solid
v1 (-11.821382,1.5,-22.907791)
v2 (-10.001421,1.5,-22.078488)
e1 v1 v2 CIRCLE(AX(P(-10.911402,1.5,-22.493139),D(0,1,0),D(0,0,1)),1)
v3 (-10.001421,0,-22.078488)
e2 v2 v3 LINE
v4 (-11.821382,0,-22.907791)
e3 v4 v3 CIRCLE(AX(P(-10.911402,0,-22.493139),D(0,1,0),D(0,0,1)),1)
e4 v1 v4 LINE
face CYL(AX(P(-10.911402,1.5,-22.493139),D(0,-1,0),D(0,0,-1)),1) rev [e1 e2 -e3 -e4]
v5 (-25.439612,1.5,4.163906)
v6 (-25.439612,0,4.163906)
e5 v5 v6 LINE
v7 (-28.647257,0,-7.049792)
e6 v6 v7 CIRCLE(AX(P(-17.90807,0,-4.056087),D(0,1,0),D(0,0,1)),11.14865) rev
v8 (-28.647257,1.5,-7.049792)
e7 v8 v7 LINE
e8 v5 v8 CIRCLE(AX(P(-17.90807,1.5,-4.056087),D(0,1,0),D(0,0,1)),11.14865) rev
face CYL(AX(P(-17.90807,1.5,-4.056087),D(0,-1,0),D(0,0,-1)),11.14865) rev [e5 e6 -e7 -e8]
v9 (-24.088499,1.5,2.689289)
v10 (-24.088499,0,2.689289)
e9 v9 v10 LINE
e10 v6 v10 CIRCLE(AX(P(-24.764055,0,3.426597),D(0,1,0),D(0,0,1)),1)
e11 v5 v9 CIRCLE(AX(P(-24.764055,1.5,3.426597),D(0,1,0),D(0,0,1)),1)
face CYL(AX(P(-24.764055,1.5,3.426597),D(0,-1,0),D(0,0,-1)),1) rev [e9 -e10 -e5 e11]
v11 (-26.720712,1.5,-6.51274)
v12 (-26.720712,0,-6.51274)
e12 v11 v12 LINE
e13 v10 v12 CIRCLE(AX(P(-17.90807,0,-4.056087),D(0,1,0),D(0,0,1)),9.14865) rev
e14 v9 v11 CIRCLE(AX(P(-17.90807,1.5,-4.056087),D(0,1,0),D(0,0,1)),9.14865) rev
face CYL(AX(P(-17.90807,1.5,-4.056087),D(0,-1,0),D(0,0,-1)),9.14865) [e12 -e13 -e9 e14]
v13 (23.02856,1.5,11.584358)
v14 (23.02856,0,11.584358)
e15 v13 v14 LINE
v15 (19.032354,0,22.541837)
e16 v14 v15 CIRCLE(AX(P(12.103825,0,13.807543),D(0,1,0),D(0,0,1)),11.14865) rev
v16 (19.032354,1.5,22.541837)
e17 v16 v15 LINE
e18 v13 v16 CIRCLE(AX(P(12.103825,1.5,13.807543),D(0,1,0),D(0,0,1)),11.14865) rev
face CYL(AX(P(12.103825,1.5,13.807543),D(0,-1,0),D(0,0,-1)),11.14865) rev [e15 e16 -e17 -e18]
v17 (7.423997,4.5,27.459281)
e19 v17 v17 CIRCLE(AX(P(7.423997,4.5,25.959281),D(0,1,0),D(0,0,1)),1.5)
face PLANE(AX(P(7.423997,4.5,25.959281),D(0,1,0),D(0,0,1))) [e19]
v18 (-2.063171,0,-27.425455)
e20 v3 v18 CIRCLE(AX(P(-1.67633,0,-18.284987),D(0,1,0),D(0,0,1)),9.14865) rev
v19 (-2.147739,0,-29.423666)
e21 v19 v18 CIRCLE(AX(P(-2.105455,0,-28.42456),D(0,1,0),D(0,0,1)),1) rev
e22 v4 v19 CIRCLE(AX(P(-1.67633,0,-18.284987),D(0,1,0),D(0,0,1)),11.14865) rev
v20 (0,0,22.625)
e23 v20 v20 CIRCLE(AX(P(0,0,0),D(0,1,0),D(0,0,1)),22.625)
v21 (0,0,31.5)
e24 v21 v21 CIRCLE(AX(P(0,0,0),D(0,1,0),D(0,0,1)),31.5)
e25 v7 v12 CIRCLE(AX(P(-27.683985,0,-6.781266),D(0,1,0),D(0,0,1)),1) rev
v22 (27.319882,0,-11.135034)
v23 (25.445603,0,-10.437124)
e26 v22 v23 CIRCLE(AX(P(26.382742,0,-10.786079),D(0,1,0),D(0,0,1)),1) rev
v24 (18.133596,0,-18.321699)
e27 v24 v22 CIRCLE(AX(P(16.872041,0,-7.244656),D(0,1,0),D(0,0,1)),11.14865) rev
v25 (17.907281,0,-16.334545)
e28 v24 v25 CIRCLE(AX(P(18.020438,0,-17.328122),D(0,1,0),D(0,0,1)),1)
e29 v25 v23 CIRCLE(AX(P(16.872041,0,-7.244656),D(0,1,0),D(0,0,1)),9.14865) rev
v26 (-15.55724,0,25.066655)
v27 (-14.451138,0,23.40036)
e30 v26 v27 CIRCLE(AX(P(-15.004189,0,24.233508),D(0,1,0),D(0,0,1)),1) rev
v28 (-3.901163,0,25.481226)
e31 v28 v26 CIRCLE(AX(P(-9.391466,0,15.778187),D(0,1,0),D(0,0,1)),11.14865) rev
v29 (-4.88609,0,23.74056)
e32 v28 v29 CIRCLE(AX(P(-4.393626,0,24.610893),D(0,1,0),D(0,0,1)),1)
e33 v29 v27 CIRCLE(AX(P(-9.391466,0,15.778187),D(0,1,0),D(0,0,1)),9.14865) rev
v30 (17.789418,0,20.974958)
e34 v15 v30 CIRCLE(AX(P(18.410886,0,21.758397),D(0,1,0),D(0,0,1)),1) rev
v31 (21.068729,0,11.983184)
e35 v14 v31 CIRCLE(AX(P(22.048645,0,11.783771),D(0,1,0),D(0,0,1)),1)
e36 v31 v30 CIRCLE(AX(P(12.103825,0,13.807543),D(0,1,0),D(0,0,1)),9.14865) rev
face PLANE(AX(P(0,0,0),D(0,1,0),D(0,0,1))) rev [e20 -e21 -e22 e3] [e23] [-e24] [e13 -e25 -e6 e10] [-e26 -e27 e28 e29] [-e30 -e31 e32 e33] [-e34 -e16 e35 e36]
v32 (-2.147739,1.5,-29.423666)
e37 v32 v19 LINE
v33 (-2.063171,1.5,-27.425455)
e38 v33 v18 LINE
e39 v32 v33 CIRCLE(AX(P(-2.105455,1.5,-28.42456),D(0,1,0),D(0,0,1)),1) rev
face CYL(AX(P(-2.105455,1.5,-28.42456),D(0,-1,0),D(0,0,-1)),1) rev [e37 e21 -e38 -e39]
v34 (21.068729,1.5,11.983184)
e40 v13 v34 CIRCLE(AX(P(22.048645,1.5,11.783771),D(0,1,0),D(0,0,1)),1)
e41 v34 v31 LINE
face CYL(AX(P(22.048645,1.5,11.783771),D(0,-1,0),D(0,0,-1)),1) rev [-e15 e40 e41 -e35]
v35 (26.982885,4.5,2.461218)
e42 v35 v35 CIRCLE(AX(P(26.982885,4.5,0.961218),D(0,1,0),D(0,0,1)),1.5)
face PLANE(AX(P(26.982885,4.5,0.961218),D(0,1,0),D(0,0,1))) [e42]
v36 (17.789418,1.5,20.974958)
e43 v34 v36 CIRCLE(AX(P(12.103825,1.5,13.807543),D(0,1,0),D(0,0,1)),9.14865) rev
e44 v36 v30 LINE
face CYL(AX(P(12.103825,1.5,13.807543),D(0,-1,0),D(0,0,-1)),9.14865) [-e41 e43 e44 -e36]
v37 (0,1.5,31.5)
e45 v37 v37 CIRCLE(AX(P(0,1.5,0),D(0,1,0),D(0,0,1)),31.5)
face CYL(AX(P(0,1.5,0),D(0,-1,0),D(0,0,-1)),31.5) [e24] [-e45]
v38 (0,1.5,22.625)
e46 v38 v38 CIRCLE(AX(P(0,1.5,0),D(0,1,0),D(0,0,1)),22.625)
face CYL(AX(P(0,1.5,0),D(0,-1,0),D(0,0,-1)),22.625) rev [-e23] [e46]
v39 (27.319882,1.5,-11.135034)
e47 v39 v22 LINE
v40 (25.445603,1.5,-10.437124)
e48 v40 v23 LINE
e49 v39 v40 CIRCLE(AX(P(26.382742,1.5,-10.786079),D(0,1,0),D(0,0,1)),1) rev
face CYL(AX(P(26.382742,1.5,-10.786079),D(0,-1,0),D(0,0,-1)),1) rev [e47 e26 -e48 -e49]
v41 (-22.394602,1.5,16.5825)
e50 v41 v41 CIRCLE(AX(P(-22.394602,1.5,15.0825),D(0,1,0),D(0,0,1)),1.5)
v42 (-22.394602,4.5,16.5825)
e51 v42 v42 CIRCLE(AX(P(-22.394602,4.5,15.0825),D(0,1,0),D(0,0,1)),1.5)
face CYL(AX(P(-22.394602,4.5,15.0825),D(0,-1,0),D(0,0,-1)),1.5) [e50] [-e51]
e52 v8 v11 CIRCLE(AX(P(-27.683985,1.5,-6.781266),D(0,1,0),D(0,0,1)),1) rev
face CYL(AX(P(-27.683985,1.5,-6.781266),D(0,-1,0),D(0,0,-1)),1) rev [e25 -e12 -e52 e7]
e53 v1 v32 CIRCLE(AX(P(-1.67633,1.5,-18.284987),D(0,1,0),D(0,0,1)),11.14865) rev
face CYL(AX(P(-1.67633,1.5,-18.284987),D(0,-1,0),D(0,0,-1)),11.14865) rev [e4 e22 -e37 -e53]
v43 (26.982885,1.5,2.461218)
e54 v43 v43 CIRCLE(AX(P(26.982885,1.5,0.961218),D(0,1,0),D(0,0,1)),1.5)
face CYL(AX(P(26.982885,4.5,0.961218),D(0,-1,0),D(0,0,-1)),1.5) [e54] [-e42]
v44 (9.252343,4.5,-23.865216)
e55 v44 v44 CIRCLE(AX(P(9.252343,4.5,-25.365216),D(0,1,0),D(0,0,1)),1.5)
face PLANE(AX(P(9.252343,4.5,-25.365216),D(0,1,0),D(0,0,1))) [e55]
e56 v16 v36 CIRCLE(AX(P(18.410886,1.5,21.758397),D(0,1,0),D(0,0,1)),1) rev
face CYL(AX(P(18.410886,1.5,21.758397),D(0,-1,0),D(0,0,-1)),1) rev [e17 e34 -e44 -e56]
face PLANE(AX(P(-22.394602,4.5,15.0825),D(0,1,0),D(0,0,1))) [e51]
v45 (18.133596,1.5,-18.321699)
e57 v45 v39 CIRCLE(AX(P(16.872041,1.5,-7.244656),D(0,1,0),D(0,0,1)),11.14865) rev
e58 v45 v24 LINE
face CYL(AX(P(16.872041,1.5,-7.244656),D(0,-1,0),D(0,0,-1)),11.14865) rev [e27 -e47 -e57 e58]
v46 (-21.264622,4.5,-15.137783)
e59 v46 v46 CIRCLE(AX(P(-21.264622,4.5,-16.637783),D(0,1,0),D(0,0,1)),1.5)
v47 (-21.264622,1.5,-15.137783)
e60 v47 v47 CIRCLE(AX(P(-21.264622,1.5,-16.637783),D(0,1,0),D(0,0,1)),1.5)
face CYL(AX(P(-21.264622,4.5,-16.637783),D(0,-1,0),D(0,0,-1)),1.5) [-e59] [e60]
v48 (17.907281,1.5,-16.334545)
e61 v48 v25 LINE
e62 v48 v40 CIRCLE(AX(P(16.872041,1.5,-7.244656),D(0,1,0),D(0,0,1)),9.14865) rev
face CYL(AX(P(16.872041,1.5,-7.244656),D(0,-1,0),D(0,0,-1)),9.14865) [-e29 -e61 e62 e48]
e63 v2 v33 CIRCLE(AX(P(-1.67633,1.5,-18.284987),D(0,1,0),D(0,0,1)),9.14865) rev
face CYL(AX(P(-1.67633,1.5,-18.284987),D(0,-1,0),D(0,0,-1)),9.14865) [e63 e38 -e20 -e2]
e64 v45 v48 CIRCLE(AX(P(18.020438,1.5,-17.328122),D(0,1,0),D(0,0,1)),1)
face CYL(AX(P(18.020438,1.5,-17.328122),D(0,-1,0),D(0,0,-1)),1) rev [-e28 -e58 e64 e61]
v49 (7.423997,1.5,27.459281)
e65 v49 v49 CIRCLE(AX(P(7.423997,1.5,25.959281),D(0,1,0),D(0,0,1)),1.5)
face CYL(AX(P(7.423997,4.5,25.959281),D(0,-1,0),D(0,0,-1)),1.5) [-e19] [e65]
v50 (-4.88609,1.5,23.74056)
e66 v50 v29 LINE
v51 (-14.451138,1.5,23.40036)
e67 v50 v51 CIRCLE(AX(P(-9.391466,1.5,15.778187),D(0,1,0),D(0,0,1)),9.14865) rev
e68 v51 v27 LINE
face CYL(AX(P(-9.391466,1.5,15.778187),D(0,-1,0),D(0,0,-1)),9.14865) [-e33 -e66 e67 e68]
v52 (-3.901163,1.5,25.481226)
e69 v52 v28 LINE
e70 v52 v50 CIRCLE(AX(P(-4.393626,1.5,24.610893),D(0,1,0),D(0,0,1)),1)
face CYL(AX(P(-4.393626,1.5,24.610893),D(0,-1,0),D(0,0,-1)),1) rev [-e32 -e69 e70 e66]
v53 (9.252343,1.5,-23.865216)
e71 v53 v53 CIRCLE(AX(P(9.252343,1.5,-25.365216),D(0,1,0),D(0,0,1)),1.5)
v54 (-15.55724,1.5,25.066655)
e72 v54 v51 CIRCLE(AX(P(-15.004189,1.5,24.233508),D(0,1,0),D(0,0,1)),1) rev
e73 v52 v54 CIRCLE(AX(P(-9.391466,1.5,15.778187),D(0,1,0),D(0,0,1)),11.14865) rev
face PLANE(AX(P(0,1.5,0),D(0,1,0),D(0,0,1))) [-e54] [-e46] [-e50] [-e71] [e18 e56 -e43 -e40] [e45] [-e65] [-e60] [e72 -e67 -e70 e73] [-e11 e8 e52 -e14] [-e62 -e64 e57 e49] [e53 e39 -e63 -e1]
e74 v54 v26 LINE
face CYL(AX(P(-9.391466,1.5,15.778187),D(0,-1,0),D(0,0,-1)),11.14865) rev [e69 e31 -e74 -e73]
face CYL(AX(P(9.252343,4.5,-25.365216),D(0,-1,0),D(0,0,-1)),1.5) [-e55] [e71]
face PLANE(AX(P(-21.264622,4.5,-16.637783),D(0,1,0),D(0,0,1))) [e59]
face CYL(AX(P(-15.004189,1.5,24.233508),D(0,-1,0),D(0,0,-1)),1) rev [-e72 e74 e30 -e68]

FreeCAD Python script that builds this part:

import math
import FreeCAD as App
import Part
import Sketcher
from FreeCAD import Vector
Q = App.Units.Quantity

doc = App.newDocument("Part")
body = doc.addObject("PartDesign::Body", "Body")

# Sketch on XZ plane
sketch1 = doc.addObject("Sketcher::SketchObject", "Sketch")
body.addObject(sketch1)
sketch1.AttachmentSupport = (doc.XZ_Plane, [""])
sketch1.MapMode = "FlatFace"
sketch1.addGeometry([
    Part.Circle(Vector(0, 0, 0), Vector(0, 0, 1), 31.5),  # 0
    Part.ArcOfCircle(Part.Circle(Vector(-17.9, -4.1, 0), Vector(0, 0, 1), 9.1), math.radians(132), math.radians(196)),  # 1
    Part.ArcOfCircle(Part.Circle(Vector(-24.8, 3.4, 0), Vector(0, 0, 1), 1), math.radians(-48), math.radians(132)),  # 2
    Part.ArcOfCircle(Part.Circle(Vector(-17.9, -4.1, 0), Vector(0, 0, 1), 11.1), math.radians(132), math.radians(196)),  # 3
    Part.ArcOfCircle(Part.Circle(Vector(-27.7, -6.8, 0), Vector(0, 0, 1), 1), math.radians(-164), math.radians(16)),  # 4
    Part.ArcOfCircle(Part.Circle(Vector(-10.9, -22.5, 0), Vector(0, 0, 1), 1), math.radians(24), math.radians(204)),  # 5
    Part.ArcOfCircle(Part.Circle(Vector(-1.7, -18.3, 0), Vector(0, 0, 1), 11.1), math.radians(-156), math.radians(-92)),  # 6
    Part.ArcOfCircle(Part.Circle(Vector(-2.1, -28.4, 0), Vector(0, 0, 1), 1), math.radians(-92), math.radians(88)),  # 7
    Part.ArcOfCircle(Part.Circle(Vector(-1.7, -18.3, 0), Vector(0, 0, 1), 9.1), math.radians(-156), math.radians(-92)),  # 8
    Part.ArcOfCircle(Part.Circle(Vector(-9.4, 15.8, 0), Vector(0, 0, 1), 9.1), math.radians(60), math.radians(124)),  # 9
    Part.ArcOfCircle(Part.Circle(Vector(-4.4, 24.6, 0), Vector(0, 0, 1), 1), math.radians(-120), math.radians(60)),  # 10
    Part.ArcOfCircle(Part.Circle(Vector(-9.4, 15.8, 0), Vector(0, 0, 1), 11.1), math.radians(60), math.radians(124)),  # 11
    Part.ArcOfCircle(Part.Circle(Vector(-15, 24.2, 0), Vector(0, 0, 1), 1), math.radians(124), math.radians(304)),  # 12
    Part.ArcOfCircle(Part.Circle(Vector(16.9, -7.2, 0), Vector(0, 0, 1), 9.1), math.radians(-84), math.radians(-20)),  # 13
    Part.ArcOfCircle(Part.Circle(Vector(18, -17.3, 0), Vector(0, 0, 1), 1), math.radians(96), math.radians(276)),  # 14
    Part.ArcOfCircle(Part.Circle(Vector(16.9, -7.2, 0), Vector(0, 0, 1), 11.1), math.radians(-84), math.radians(-20)),  # 15
    Part.ArcOfCircle(Part.Circle(Vector(26.4, -10.8, 0), Vector(0, 0, 1), 1), math.radians(-20), math.radians(160)),  # 16
    Part.Circle(Vector(0, 0, 0), Vector(0, 0, 1), 22.6),  # 17
    Part.ArcOfCircle(Part.Circle(Vector(12.1, 13.8, 0), Vector(0, 0, 1), 9.1), math.radians(-12), math.radians(52)),  # 18
    Part.ArcOfCircle(Part.Circle(Vector(22, 11.8, 0), Vector(0, 0, 1), 1), math.radians(168), math.radians(348)),  # 19
    Part.ArcOfCircle(Part.Circle(Vector(12.1, 13.8, 0), Vector(0, 0, 1), 11.1), math.radians(-12), math.radians(52)),  # 20
    Part.ArcOfCircle(Part.Circle(Vector(18.4, 21.8, 0), Vector(0, 0, 1), 1), math.radians(52), math.radians(232)),  # 21
], False)
sketch1.addConstraint([
    Sketcher.Constraint("Tangent", 1, 1, 2, 1),
    Sketcher.Constraint("Tangent", 2, 2, 3, 1),
    Sketcher.Constraint("Tangent", 3, 2, 4, 1),
    Sketcher.Constraint("Tangent", 4, 2, 1, 2),
    Sketcher.Constraint("Tangent", 5, 2, 6, 1),
    Sketcher.Constraint("Tangent", 6, 2, 7, 1),
    Sketcher.Constraint("Tangent", 7, 2, 8, 2),
    Sketcher.Constraint("Tangent", 8, 1, 5, 1),
    Sketcher.Constraint("Tangent", 9, 1, 10, 1),
    Sketcher.Constraint("Tangent", 10, 2, 11, 1),
    Sketcher.Constraint("Tangent", 11, 2, 12, 1),
    Sketcher.Constraint("Tangent", 12, 2, 9, 2),
    Sketcher.Constraint("Tangent", 13, 1, 14, 1),
    Sketcher.Constraint("Tangent", 14, 2, 15, 1),
    Sketcher.Constraint("Tangent", 15, 2, 16, 1),
    Sketcher.Constraint("Tangent", 16, 2, 13, 2),
    Sketcher.Constraint("Tangent", 18, 1, 19, 1),
    Sketcher.Constraint("Tangent", 19, 2, 20, 1),
    Sketcher.Constraint("Tangent", 20, 2, 21, 1),
    Sketcher.Constraint("Tangent", 21, 2, 18, 2),
    Sketcher.Constraint("Coincident", 0, 3, -1, 1),
    Sketcher.Constraint("Coincident", 17, 3, -1, 1),
    Sketcher.Constraint("Coincident", 3, 3, 1, 3),
    Sketcher.Constraint("Coincident", 8, 3, 6, 3),
    Sketcher.Constraint("Coincident", 11, 3, 9, 3),
    Sketcher.Constraint("Coincident", 15, 3, 13, 3),
    Sketcher.Constraint("Coincident", 20, 3, 18, 3),
    Sketcher.Constraint("Equal", 4, 5),
    Sketcher.Constraint("Equal", 3, 6),
    Sketcher.Constraint("Equal", 8, 9),
    Sketcher.Constraint("Equal", 7, 10),
    Sketcher.Constraint("Equal", 9, 13),
    Sketcher.Constraint("Equal", 12, 14),
    Sketcher.Constraint("Equal", 13, 18),
    Sketcher.Constraint("Equal", 16, 19),
    Sketcher.Constraint("Diameter", 0, Q("63 mm")),
    Sketcher.Constraint("Radius", 2, Q("1 mm")),
    Sketcher.Constraint("Diameter", 17, Q("45.25 mm")),
    Sketcher.Constraint("Radius", 1, Q("9.14865 mm")),
    Sketcher.Constraint("DistanceX", 5, 3, -1, 1, Q("10.911402 mm")),
    Sketcher.Constraint("DistanceX", 1, 1, -1, 1, Q("24.088499 mm")),
    Sketcher.Constraint("DistanceY", 14, 2, -1, 1, Q("18.321699 mm")),
    Sketcher.Constraint("DistanceY", 6, 3, 3, 3, Q("14.228899 mm")),
    Sketcher.Constraint("DistanceX", 15, 3, 16, 3, Q("9.510701 mm")),
    Sketcher.Constraint("DistanceY", 13, 3, 18, 3, Q("21.052199 mm")),
    Sketcher.Constraint("DistanceX", 3, 2, 2, 3, Q("3.883202 mm")),
    Sketcher.Constraint("DistanceY", 8, 1, 8, 3, Q("3.793501 mm")),
    Sketcher.Constraint("DistanceX", 12, 3, 9, 1, Q("10.118099 mm")),
    Sketcher.Constraint("DistanceY", 12, 2, 9, 1, Q("0.340199 mm")),
    Sketcher.Constraint("DistanceX", 13, 1, 15, 2, Q("9.412601 mm")),
    Sketcher.Constraint("DistanceX", 1, 3, -1, 1, Q("17.90807 mm")),
    Sketcher.Constraint("DistanceY", 5, 3, -1, 1, Q("22.493139 mm")),
    Sketcher.Constraint("DistanceY", 7, 3, -1, 1, Q("28.42456 mm")),
    Sketcher.Constraint("DistanceX", 12, 3, -1, 1, Q("15.004189 mm")),
    Sketcher.Constraint("DistanceX", -1, 1, 13, 3, Q("16.872041 mm")),
    Sketcher.Constraint("DistanceY", -1, 1, 19, 3, Q("11.783771 mm")),
    Sketcher.Constraint("DistanceY", -1, 1, 9, 1, Q("23.74056 mm")),
    Sketcher.Constraint("DistanceX", -1, 1, 18, 1, Q("21.068729 mm")),
    Sketcher.Constraint("DistanceX", -1, 1, 21, 2, Q("17.789418 mm")),
])
pad1 = doc.addObject("PartDesign::Pad", "Pad")
body.addObject(pad1)
pad1.Profile = sketch1
pad1.Length = 1.5
pad1.Reversed = True

# Sketch on XZ plane
sketch2 = doc.addObject("Sketcher::SketchObject", "Sketch001")
body.addObject(sketch2)
sketch2.AttachmentSupport = (doc.XZ_Plane, [""])
sketch2.MapMode = "FlatFace"
sketch2.AttachmentOffset = App.Placement(Vector(0, 0, -1.5), App.Rotation())
sketch2.addGeometry([
    Part.Circle(Vector(-21.3, -16.6, 0), Vector(0, 0, 1), 1.5),  # 0
    Part.Circle(Vector(9.3, -25.4, 0), Vector(0, 0, 1), 1.5),  # 1
    Part.Circle(Vector(27, 1, 0), Vector(0, 0, 1), 1.5),  # 2
    Part.Circle(Vector(7.4, 26, 0), Vector(0, 0, 1), 1.5),  # 3
    Part.Circle(Vector(-22.4, 15.1, 0), Vector(0, 0, 1), 1.5),  # 4
], False)
sketch2.addConstraint([
    Sketcher.Constraint("Equal", 0, 1),
    Sketcher.Constraint("Equal", 1, 2),
    Sketcher.Constraint("Equal", 2, 3),
    Sketcher.Constraint("Equal", 3, 4),
    Sketcher.Constraint("Diameter", 0, Q("3 mm")),
    Sketcher.Constraint("DistanceY", 0, 3, 2, 3, Q("17.599001 mm")),
    Sketcher.Constraint("DistanceX", 4, 3, -1, 1, Q("22.394602 mm")),
    Sketcher.Constraint("DistanceY", -1, 1, 4, 3, Q("15.0825 mm")),
    Sketcher.Constraint("DistanceX", 4, 3, 3, 3, Q("29.818599 mm")),
    Sketcher.Constraint("DistanceY", -1, 1, 3, 3, Q("25.959281 mm")),
    Sketcher.Constraint("DistanceX", 0, 3, 3, 3, Q("28.68862 mm")),
    Sketcher.Constraint("DistanceY", 2, 3, 4, 3, Q("14.121282 mm")),
    Sketcher.Constraint("DistanceX", -1, 1, 1, 3, Q("9.252343 mm")),
    Sketcher.Constraint("DistanceY", 1, 3, -1, 1, Q("25.365216 mm")),
    Sketcher.Constraint("DistanceX", -1, 1, 2, 3, Q("26.982885 mm")),
])
pad2 = doc.addObject("PartDesign::Pad", "Pad001")
body.addObject(pad2)
pad2.Profile = sketch2
pad2.Length = 3
pad2.Reversed = True

doc.recompute()
